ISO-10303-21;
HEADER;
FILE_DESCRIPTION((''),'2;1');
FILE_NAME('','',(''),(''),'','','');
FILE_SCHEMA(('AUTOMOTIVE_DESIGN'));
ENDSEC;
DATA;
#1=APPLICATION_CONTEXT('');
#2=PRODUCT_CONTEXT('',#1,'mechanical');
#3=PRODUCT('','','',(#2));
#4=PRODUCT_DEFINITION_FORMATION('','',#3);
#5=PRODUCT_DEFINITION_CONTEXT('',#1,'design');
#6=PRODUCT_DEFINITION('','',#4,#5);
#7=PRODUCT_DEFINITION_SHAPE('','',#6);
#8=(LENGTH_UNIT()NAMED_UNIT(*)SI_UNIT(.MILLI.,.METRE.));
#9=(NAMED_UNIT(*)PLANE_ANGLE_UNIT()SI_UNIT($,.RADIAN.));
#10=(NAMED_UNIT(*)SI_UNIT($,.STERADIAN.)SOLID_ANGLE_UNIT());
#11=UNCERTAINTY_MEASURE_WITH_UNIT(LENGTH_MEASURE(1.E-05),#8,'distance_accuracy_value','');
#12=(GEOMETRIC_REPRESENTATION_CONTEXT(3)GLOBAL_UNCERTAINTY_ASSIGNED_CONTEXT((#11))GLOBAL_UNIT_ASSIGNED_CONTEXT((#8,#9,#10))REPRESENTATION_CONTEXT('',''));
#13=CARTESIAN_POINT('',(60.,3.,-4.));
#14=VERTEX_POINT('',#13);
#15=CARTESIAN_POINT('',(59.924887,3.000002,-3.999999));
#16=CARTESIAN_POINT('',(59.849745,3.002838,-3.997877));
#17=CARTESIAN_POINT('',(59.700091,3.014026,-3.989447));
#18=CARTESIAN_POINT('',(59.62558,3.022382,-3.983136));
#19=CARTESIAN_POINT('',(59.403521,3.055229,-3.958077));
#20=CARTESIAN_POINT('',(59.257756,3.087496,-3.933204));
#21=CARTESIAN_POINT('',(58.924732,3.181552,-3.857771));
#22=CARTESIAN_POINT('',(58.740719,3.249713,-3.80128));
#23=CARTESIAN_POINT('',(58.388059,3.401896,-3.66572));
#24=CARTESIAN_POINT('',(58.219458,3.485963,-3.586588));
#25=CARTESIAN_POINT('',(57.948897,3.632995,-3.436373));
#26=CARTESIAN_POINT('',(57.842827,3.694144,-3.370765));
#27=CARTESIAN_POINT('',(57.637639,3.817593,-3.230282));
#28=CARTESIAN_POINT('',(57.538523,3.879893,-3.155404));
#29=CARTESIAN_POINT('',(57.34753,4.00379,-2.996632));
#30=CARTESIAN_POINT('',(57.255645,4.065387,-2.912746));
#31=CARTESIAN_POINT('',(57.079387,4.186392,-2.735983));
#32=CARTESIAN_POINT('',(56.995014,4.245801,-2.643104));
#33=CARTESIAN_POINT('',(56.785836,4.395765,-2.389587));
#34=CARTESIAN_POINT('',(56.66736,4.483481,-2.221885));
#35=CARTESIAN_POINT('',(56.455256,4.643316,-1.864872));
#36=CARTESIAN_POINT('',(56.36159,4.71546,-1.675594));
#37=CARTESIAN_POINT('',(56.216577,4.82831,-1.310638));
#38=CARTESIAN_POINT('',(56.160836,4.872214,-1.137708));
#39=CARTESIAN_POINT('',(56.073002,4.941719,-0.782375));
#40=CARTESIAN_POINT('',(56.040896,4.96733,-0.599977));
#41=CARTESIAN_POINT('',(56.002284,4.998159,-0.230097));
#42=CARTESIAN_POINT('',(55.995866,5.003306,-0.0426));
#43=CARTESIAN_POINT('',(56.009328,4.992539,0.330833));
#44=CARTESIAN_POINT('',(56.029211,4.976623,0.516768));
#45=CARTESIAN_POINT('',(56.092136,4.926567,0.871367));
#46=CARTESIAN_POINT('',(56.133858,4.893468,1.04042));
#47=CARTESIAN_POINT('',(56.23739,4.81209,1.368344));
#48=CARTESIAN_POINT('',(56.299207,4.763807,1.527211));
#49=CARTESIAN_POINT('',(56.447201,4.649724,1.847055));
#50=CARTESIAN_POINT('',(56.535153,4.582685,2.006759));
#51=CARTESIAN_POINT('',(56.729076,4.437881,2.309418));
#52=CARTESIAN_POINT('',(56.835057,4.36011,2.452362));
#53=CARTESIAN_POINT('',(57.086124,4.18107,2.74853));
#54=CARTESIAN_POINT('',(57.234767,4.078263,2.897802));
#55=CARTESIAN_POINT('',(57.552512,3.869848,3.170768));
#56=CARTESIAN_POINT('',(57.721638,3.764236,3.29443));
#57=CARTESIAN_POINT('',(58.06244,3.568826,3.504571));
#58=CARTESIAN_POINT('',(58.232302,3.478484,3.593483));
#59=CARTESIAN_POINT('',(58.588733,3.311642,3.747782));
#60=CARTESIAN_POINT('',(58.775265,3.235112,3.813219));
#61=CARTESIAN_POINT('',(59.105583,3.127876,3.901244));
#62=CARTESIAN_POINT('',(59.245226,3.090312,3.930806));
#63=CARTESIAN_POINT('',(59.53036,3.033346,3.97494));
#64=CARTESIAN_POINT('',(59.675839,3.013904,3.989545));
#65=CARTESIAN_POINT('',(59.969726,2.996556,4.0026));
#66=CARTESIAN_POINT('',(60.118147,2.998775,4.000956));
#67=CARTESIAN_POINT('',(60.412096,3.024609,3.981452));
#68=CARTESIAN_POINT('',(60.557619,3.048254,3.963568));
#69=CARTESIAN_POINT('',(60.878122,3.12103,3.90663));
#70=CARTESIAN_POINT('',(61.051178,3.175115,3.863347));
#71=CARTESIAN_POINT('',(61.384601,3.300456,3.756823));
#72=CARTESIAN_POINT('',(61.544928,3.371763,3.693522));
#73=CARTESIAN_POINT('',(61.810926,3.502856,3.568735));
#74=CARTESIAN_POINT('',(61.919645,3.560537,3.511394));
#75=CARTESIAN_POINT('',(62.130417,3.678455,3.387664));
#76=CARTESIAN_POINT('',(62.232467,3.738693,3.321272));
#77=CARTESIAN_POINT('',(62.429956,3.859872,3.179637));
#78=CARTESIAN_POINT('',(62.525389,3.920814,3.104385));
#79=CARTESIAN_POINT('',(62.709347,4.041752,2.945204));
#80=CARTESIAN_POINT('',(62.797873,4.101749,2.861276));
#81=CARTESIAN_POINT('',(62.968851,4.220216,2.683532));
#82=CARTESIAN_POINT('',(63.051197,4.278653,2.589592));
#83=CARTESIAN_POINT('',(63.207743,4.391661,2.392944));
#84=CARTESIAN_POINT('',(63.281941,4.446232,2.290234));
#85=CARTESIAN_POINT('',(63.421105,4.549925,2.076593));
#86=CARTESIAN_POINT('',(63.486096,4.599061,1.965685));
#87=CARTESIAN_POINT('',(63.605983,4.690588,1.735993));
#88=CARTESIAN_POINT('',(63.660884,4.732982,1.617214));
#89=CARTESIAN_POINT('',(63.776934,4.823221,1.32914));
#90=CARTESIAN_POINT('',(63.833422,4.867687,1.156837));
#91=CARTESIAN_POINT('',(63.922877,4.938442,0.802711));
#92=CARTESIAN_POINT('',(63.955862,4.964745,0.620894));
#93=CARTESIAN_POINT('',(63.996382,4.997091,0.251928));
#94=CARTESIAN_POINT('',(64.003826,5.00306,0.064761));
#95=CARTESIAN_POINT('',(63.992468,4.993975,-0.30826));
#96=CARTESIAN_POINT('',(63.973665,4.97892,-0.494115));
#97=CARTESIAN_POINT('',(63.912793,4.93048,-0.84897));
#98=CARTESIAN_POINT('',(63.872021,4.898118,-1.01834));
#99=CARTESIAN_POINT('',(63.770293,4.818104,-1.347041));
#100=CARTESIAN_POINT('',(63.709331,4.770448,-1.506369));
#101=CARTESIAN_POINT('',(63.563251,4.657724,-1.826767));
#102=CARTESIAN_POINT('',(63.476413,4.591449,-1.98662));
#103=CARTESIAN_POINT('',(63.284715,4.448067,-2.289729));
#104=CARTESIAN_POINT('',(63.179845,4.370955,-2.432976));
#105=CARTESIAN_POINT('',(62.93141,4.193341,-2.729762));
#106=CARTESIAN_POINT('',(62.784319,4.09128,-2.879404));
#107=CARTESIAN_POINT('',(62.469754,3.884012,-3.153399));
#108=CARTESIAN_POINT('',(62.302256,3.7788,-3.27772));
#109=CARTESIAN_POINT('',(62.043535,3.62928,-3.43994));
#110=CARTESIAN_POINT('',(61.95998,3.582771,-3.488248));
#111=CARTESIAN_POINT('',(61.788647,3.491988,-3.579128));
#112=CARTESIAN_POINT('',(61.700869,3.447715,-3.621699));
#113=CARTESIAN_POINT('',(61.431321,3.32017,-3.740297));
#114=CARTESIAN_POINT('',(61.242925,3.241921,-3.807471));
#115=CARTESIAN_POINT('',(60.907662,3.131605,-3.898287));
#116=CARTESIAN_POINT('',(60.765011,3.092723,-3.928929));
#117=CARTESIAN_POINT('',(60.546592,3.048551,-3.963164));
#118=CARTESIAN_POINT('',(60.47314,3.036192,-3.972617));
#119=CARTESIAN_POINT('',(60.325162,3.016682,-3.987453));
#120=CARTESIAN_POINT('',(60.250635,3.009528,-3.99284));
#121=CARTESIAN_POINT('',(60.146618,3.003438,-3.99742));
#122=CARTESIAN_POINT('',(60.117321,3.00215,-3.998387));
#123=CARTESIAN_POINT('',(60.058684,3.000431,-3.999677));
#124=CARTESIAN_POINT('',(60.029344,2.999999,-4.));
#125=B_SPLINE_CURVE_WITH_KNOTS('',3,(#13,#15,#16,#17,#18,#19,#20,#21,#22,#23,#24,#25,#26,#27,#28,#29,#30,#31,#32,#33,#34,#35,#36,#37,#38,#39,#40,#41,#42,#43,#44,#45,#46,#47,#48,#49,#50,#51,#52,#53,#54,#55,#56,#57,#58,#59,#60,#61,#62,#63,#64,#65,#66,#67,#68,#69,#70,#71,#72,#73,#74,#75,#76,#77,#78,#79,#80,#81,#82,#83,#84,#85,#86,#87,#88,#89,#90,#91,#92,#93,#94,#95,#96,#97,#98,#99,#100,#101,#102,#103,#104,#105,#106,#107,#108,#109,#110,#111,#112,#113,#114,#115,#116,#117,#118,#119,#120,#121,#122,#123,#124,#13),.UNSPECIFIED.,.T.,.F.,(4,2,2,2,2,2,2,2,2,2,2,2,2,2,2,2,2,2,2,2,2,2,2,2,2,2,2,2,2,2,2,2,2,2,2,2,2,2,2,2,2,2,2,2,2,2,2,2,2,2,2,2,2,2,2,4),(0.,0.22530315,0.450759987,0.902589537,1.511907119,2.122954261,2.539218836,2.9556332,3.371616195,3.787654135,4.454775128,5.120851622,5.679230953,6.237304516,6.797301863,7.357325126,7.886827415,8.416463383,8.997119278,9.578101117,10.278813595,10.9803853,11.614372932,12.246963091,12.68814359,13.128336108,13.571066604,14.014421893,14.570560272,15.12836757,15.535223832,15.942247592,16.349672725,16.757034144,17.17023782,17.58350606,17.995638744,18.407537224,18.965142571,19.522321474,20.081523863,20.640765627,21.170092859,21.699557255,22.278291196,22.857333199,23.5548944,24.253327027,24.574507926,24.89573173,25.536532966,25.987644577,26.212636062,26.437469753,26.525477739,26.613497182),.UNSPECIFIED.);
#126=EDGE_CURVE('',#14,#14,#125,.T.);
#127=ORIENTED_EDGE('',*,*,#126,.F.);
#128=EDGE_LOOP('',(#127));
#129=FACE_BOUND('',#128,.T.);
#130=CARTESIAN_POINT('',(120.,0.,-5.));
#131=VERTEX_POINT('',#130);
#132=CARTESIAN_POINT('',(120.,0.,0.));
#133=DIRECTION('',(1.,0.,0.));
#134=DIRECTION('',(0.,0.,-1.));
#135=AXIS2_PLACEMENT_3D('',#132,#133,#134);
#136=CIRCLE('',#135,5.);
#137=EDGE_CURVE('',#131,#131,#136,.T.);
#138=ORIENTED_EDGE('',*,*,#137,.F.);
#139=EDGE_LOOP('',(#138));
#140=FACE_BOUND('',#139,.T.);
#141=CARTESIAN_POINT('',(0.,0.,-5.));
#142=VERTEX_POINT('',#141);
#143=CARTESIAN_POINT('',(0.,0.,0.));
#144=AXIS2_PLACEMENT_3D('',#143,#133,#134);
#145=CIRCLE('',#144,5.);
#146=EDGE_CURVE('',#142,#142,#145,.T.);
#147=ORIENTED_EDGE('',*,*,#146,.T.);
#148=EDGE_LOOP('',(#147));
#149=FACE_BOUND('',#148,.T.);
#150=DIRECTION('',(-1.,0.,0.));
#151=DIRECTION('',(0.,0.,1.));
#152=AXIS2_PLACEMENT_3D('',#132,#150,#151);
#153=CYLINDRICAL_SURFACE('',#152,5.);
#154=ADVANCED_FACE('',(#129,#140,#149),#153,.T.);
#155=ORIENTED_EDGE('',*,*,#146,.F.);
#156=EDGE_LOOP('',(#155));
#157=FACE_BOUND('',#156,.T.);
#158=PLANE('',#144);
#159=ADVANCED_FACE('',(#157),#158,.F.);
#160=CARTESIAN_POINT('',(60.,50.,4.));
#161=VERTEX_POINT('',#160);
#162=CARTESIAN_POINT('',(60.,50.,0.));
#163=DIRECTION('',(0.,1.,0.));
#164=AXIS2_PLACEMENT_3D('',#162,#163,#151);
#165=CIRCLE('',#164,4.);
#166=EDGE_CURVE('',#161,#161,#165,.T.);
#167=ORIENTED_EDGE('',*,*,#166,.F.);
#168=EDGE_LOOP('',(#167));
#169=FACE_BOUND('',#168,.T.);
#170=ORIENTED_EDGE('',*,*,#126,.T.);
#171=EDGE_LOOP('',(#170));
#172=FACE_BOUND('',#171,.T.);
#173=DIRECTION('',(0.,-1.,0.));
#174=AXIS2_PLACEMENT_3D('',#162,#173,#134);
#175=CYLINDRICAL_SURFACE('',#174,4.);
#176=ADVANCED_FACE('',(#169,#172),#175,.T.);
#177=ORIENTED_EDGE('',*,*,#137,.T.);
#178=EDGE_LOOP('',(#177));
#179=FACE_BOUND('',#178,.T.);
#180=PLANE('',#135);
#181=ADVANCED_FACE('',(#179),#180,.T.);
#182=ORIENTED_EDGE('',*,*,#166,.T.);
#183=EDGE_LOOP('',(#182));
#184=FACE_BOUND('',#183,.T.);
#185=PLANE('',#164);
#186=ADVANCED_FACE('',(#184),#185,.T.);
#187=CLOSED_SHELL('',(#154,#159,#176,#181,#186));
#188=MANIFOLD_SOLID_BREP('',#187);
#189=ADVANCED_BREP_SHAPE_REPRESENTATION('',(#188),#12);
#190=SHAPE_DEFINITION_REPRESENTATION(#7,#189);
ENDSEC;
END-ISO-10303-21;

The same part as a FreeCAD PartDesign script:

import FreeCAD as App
import Part
import Sketcher

doc = App.newDocument("Part")
body = doc.addObject("PartDesign::Body", "Body")

# Sketch on YZ plane
sketch1 = doc.addObject("Sketcher::SketchObject", "Sketch")
body.addObject(sketch1)
sketch1.AttachmentSupport = (doc.YZ_Plane, [""])
sketch1.MapMode = "FlatFace"
sketch1.addGeometry(Part.Circle(App.Vector(0, 0, 0), App.Vector(0, 0, 1), 5), False)
sketch1.addConstraint([
    Sketcher.Constraint("Coincident", 0, 3, -1, 1),
    Sketcher.Constraint("Diameter", 0, 10.0),
])
pad1 = doc.addObject("PartDesign::Pad", "Pad")
body.addObject(pad1)
pad1.Profile = sketch1
pad1.Length = 120
pad1.Midplane = True

# Sketch on XZ plane
sketch2 = doc.addObject("Sketcher::SketchObject", "Sketch001")
body.addObject(sketch2)
sketch2.AttachmentSupport = (doc.XZ_Plane, [""])
sketch2.MapMode = "FlatFace"
sketch2.addGeometry(Part.Circle(App.Vector(0, 0, 0), App.Vector(0, 0, 1), 4), False)
sketch2.addConstraint([
    Sketcher.Constraint("Coincident", 0, 3, -1, 1),
    Sketcher.Constraint("Diameter", 0, 8.0),
])
pad2 = doc.addObject("PartDesign::Pad", "Pad001")
body.addObject(pad2)
pad2.Profile = sketch2
pad2.Length = 50
pad2.Reversed = True
body2 = doc.addObject("PartDesign::Body", "Body001")
doc.recompute()

body.Placement = App.Placement(App.Vector(60, 0, 0), App.Rotation(App.Vector(0, 0, 1), 0))
boolean = doc.addObject("PartDesign::Boolean", "Boolean")
body2.addObject(boolean)
boolean.Type = "Fuse"
boolean.addObjects([body])

doc.recompute()
